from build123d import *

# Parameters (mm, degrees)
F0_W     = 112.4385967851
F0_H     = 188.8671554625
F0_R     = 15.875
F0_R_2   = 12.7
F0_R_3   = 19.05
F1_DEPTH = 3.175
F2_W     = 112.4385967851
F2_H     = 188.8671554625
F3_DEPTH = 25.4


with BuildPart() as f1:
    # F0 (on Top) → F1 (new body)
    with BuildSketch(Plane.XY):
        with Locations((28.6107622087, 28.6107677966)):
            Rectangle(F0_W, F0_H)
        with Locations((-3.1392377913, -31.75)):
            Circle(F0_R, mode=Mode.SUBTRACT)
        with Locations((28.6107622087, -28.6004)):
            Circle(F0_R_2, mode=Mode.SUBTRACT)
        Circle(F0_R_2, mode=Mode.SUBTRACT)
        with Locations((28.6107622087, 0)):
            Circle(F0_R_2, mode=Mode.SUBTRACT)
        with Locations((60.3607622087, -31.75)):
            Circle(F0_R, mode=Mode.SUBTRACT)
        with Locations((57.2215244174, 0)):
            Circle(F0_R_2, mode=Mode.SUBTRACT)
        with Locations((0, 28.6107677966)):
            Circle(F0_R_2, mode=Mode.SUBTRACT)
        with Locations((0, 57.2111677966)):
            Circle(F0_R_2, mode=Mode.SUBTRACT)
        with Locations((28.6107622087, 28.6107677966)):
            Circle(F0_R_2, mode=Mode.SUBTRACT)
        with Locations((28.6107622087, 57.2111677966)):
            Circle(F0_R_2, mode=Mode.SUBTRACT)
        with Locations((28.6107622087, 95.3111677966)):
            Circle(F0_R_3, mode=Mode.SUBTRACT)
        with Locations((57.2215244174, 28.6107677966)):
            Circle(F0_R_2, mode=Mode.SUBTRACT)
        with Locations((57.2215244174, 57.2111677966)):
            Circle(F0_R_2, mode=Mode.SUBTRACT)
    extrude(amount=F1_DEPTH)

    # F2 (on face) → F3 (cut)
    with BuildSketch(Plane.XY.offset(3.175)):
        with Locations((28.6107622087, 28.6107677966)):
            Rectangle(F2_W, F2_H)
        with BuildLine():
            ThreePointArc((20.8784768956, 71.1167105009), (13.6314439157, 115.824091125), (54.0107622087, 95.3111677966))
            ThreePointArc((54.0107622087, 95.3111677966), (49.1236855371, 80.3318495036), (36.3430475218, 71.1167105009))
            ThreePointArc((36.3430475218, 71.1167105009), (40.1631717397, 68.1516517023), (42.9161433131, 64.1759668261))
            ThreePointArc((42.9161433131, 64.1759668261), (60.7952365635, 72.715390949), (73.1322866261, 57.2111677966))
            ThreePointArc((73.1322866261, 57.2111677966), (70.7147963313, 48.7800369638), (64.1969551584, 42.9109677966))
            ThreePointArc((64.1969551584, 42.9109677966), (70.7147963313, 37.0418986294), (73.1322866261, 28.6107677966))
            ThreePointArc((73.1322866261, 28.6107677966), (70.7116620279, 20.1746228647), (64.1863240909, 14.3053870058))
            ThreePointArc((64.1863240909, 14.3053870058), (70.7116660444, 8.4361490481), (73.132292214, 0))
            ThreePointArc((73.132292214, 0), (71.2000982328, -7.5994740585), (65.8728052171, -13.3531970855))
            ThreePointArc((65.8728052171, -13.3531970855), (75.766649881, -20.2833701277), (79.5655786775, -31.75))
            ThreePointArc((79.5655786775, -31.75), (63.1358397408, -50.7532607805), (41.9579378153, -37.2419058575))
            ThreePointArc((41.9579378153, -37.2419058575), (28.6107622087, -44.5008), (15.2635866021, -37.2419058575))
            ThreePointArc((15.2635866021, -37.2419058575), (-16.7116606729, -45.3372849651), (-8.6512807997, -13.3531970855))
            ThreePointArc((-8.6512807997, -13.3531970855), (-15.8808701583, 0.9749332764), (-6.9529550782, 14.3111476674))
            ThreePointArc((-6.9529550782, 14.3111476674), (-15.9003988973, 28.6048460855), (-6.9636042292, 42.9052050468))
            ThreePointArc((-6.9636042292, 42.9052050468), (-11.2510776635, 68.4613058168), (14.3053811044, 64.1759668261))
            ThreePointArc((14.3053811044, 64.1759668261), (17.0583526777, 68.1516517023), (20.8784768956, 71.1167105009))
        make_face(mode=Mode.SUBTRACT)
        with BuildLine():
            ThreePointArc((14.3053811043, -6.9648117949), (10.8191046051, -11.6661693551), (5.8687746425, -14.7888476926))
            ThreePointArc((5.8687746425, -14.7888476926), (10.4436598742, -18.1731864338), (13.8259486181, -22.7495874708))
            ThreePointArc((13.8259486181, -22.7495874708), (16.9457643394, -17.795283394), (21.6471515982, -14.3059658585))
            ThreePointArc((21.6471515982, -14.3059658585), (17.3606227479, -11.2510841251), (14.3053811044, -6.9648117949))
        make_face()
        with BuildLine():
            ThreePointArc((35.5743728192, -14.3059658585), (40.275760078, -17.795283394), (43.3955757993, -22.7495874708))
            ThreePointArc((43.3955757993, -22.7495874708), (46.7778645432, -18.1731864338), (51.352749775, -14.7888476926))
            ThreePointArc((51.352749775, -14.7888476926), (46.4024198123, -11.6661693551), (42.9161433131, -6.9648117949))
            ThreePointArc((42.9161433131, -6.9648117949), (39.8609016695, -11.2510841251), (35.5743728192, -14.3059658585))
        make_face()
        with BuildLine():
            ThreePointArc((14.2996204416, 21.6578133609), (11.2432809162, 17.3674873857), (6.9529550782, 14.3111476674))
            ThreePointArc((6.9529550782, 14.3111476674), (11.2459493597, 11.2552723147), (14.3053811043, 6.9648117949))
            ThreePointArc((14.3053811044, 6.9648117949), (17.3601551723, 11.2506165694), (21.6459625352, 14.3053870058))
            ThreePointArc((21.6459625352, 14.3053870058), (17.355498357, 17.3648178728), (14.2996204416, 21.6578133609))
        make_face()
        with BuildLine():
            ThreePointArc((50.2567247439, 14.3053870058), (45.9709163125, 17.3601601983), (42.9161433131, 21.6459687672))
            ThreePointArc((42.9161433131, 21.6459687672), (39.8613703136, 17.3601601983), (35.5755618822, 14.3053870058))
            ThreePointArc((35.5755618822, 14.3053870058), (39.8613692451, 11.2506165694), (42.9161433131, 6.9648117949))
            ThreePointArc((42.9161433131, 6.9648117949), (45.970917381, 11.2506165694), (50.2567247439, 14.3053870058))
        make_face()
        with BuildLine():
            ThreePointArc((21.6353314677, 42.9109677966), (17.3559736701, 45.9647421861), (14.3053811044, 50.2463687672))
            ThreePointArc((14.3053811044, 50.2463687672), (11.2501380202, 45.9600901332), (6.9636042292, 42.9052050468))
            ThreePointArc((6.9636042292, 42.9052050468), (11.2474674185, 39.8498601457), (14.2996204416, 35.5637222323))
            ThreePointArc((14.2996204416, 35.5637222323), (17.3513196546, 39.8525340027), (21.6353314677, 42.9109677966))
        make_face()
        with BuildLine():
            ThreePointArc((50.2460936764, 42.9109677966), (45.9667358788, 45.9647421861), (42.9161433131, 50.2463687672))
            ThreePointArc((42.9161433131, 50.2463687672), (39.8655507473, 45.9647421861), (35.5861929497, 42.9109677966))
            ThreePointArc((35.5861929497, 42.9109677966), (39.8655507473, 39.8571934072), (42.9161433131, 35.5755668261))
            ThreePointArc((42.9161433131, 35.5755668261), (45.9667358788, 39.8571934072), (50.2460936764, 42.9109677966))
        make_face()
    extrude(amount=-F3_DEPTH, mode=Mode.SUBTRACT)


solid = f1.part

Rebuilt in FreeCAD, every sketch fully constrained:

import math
import FreeCAD as App
import Part
import Sketcher

V = App.Vector
Q = App.Units.Quantity

doc = App.newDocument("Part")
params = doc.addObject("Spreadsheet::Sheet", "Params")
for row, (alias, value) in enumerate([
    ("sketch1_diameter", "1 in"),
    ("sketch1_diameter2", "1.5 in"),
    ("sketch1_diameter3", "1.25 in"),
    ("pad1_length", "0.125 in"),
    ("sketch2_radius", "1 in"),
    ("sketch2_radius2", "0.626 in"),
    ("pocket1_length", "1 in"),
], start=1):
    params.set(f"A{row}", alias)
    params.set(f"B{row}", "=" + value)
    params.setAlias(f"B{row}", alias)

body = doc.addObject("PartDesign::Body", "Body")

sketch1 = body.newObject("Sketcher::SketchObject", "Sketch")
sketch1.AttachmentSupport = (doc.getObject("XY_Plane"), [""])
sketch1.MapMode = "FlatFace"
sketch1.addGeometry([
    Part.LineSegment(V(-28, 123, 0), V(-28, -66, 0)),
    Part.LineSegment(V(-28, -66, 0), V(85, -66, 0)),
    Part.LineSegment(V(85, -66, 0), V(85, 123, 0)),
    Part.LineSegment(V(85, 123, 0), V(-28, 123, 0)),
    Part.Circle(V(-3, -32, 0), V(0, 0, 1), 16),
    Part.Circle(V(0, 0, 0), V(0, 0, 1), 13),
    Part.Circle(V(0, 29, 0), V(0, 0, 1), 13),
    Part.Circle(V(29, -29, 0), V(0, 0, 1), 13),
    Part.Circle(V(60, -32, 0), V(0, 0, 1), 16),
    Part.Circle(V(29, 0, 0), V(0, 0, 1), 13),
    Part.Circle(V(29, 29, 0), V(0, 0, 1), 13),
    Part.Circle(V(57, 0, 0), V(0, 0, 1), 13),
    Part.Circle(V(57, 29, 0), V(0, 0, 1), 13),
    Part.Circle(V(0, 57, 0), V(0, 0, 1), 13),
    Part.Circle(V(29, 57, 0), V(0, 0, 1), 13),
    Part.Circle(V(57, 57, 0), V(0, 0, 1), 13),
    Part.Circle(V(29, 95, 0), V(0, 0, 1), 19),
], False)
sketch1.addConstraint([
    Sketcher.Constraint("Coincident", 0, 2, 1, 1),
    Sketcher.Constraint("Coincident", 1, 2, 2, 1),
    Sketcher.Constraint("Coincident", 2, 2, 3, 1),
    Sketcher.Constraint("Coincident", 3, 2, 0, 1),
    Sketcher.Constraint("Vertical", 0),
    Sketcher.Constraint("Horizontal", 1),
    Sketcher.Constraint("Vertical", 2),
    Sketcher.Constraint("Horizontal", 3),
    Sketcher.Constraint("Coincident", 5, 3, -1, 1),
    Sketcher.Constraint("Equal", 5, 6),
    Sketcher.Constraint("Equal", 6, 7),
    Sketcher.Constraint("Equal", 4, 8),
    Sketcher.Constraint("Equal", 7, 9),
    Sketcher.Constraint("Equal", 9, 10),
    Sketcher.Constraint("Equal", 10, 11),
    Sketcher.Constraint("Equal", 11, 12),
    Sketcher.Constraint("Equal", 12, 13),
    Sketcher.Constraint("Equal", 13, 14),
    Sketcher.Constraint("Equal", 14, 15),
    Sketcher.Constraint("PointOnObject", 6, 3, -2),
    Sketcher.Constraint("PointOnObject", 9, 3, -1),
    Sketcher.Constraint("PointOnObject", 11, 3, -1),
    Sketcher.Constraint("PointOnObject", 13, 3, -2),
    Sketcher.Constraint("Horizontal", 4, 3, 8, 3),
    Sketcher.Constraint("Horizontal", 6, 3, 10, 3),
    Sketcher.Constraint("Horizontal", 10, 3, 12, 3),
    Sketcher.Constraint("Horizontal", 13, 3, 14, 3),
    Sketcher.Constraint("Horizontal", 14, 3, 15, 3),
    Sketcher.Constraint("Vertical", 7, 3, 9, 3),
    Sketcher.Constraint("Vertical", 9, 3, 10, 3),
    Sketcher.Constraint("Vertical", 11, 3, 12, 3),
    Sketcher.Constraint("Vertical", 10, 3, 14, 3),
    Sketcher.Constraint("Vertical", 12, 3, 15, 3),
    Sketcher.Constraint("Vertical", 14, 3, 16, 3),
    Sketcher.Constraint("Diameter", 5, Q("1 in")),
    Sketcher.Constraint("Diameter", 16, Q("1.5 in")),
    Sketcher.Constraint("Diameter", 4, Q("1.25 in")),
    Sketcher.Constraint("DistanceX", 4, 3, 8, 3, Q("2.5 in")),
    Sketcher.Constraint("DistanceY", 14, 3, 16, 3, Q("1.5 in")),
    Sketcher.Constraint("DistanceY", 4, 3, -1, 1, Q("1.25 in")),
    Sketcher.Constraint("DistanceX", 4, 3, 7, 3, Q("1.25 in")),
    Sketcher.Constraint("DistanceY", 7, 3, -1, 1, Q("1.126 in")),
    Sketcher.Constraint("DistanceY", 6, 3, 13, 3, Q("1.126 in")),
    Sketcher.Constraint("DistanceX", 0, 2, 4, 3, 24.469298),
    Sketcher.Constraint("DistanceX", 8, 3, 1, 2, 24.469298),
    Sketcher.Constraint("DistanceY", 0, 2, 0, 1, 188.867155),
    Sketcher.Constraint("DistanceY", 0, 2, -1, 1, 65.82281),
    Sketcher.Constraint("DistanceX", -1, 1, 1, 2, 84.830061),
    Sketcher.Constraint("DistanceX", 3, 2, 15, 3, 84.830061),
    Sketcher.Constraint("DistanceY", -1, 1, 6, 3, 28.610768),
])
sketch1.setExpression("Constraints[34]", "Params.sketch1_diameter")
sketch1.setExpression("Constraints[35]", "Params.sketch1_diameter2")
sketch1.setExpression("Constraints[36]", "Params.sketch1_diameter3")
pad1 = body.newObject("PartDesign::Pad", "Pad")
pad1.Profile = sketch1
pad1.setExpression("Length", "Params.pad1_length")

sketch2 = body.newObject("Sketcher::SketchObject", "Sketch001")
sketch2.AttachmentSupport = (doc.getObject("XY_Plane"), [""])
sketch2.MapMode = "FlatFace"
sketch2.AttachmentOffset = App.Placement(V(0, 0, 0.125 * 25.4), App.Rotation())
sketch2.addGeometry([
    Part.LineSegment(V(-28, 123, 0), V(-28, -66, 0)),
    Part.LineSegment(V(-28, -66, 0), V(85, -66, 0)),
    Part.LineSegment(V(85, -66, 0), V(85, 123, 0)),
    Part.LineSegment(V(85, 123, 0), V(-28, 123, 0)),
    Part.ArcOfCircle(Part.Circle(V(29, 57, 0), V(0, 0, 1), 16), math.radians(119), math.radians(154)),
    Part.ArcOfCircle(Part.Circle(V(29, 95, 0), V(0, 0, 1), 25), math.radians(0), math.radians(252)),
    Part.ArcOfCircle(Part.Circle(V(29, 95, 0), V(0, 0, 1), 25), math.radians(-72), math.radians(0)),
    Part.ArcOfCircle(Part.Circle(V(29, 57, 0), V(0, 0, 1), 16), math.radians(26), math.radians(61)),
    Part.ArcOfCircle(Part.Circle(V(57, 57, 0), V(0, 0, 1), 16), math.radians(0), math.radians(154)),
    Part.ArcOfCircle(Part.Circle(V(57, 57, 0), V(0, 0, 1), 16), math.radians(-64), math.radians(0)),
    Part.ArcOfCircle(Part.Circle(V(57, 29, 0), V(0, 0, 1), 16), math.radians(0), math.radians(64)),
    Part.ArcOfCircle(Part.Circle(V(57, 29, 0), V(0, 0, 1), 16), math.radians(-64), math.radians(0)),
    Part.ArcOfCircle(Part.Circle(V(57, 0, 0), V(0, 0, 1), 16), math.radians(0), math.radians(64)),
    Part.ArcOfCircle(Part.Circle(V(57, 0, 0), V(0, 0, 1), 16), math.radians(-57), math.radians(0)),
    Part.ArcOfCircle(Part.Circle(V(60, -32, 0), V(0, 0, 1), 19), math.radians(0), math.radians(73)),
    Part.ArcOfCircle(Part.Circle(V(60, -32, 0), V(0, 0, 1), 19), math.radians(-163), math.radians(0)),
    Part.ArcOfCircle(Part.Circle(V(29, -29, 0), V(0, 0, 1), 16), math.radians(-147), math.radians(-33)),
    Part.ArcOfCircle(Part.Circle(V(-3, -32, 0), V(0, 0, 1), 19), math.radians(107), math.radians(343)),
    Part.ArcOfCircle(Part.Circle(V(0, 0, 0), V(0, 0, 1), 16), math.radians(116), math.radians(237)),
    Part.ArcOfCircle(Part.Circle(V(0, 29, 0), V(0, 0, 1), 16), math.radians(116), math.radians(244)),
    Part.ArcOfCircle(Part.Circle(V(0, 57, 0), V(0, 0, 1), 16), math.radians(26), math.radians(244)),
    Part.ArcOfCircle(Part.Circle(V(0, 0, 0), V(0, 0, 1), 16), math.radians(-68), math.radians(-26)),
    Part.ArcOfCircle(Part.Circle(V(-3, -32, 0), V(0, 0, 1), 19), math.radians(28), math.radians(62)),
    Part.ArcOfCircle(Part.Circle(V(29, -29, 0), V(0, 0, 1), 16), math.radians(116), math.radians(158)),
    Part.ArcOfCircle(Part.Circle(V(29, 0, 0), V(0, 0, 1), 16), math.radians(-154), math.radians(-116)),
    Part.ArcOfCircle(Part.Circle(V(29, -29, 0), V(0, 0, 1), 16), math.radians(22), math.radians(64)),
    Part.ArcOfCircle(Part.Circle(V(60, -32, 0), V(0, 0, 1), 19), math.radians(118), math.radians(152)),
    Part.ArcOfCircle(Part.Circle(V(57, 0, 0), V(0, 0, 1), 16), math.radians(-154), math.radians(-112)),
    Part.ArcOfCircle(Part.Circle(V(29, 0, 0), V(0, 0, 1), 16), math.radians(-64), math.radians(-26)),
    Part.ArcOfCircle(Part.Circle(V(0, 29, 0), V(0, 0, 1), 16), math.radians(-64), math.radians(-26)),
    Part.ArcOfCircle(Part.Circle(V(0, 0, 0), V(0, 0, 1), 16), math.radians(26), math.radians(64)),
    Part.ArcOfCircle(Part.Circle(V(29, 0, 0), V(0, 0, 1), 16), math.radians(116), math.radians(154)),
    Part.ArcOfCircle(Part.Circle(V(29, 29, 0), V(0, 0, 1), 16), math.radians(-154), math.radians(-116)),
    Part.ArcOfCircle(Part.Circle(V(57, 29, 0), V(0, 0, 1), 16), math.radians(-154), math.radians(-116)),
    Part.ArcOfCircle(Part.Circle(V(29, 29, 0), V(0, 0, 1), 16), math.radians(-64), math.radians(-26)),
    Part.ArcOfCircle(Part.Circle(V(29, 0, 0), V(0, 0, 1), 16), math.radians(26), math.radians(64)),
    Part.ArcOfCircle(Part.Circle(V(57, 0, 0), V(0, 0, 1), 16), math.radians(116), math.radians(154)),
    Part.ArcOfCircle(Part.Circle(V(29, 57, 0), V(0, 0, 1), 16), math.radians(-154), math.radians(-116)),
    Part.ArcOfCircle(Part.Circle(V(0, 57, 0), V(0, 0, 1), 16), math.radians(-64), math.radians(-26)),
    Part.ArcOfCircle(Part.Circle(V(0, 29, 0), V(0, 0, 1), 16), math.radians(26), math.radians(64)),
    Part.ArcOfCircle(Part.Circle(V(29, 29, 0), V(0, 0, 1), 16), math.radians(116), math.radians(154)),
    Part.ArcOfCircle(Part.Circle(V(57, 57, 0), V(0, 0, 1), 16), math.radians(-154), math.radians(-116)),
    Part.ArcOfCircle(Part.Circle(V(29, 57, 0), V(0, 0, 1), 16), math.radians(-64), math.radians(-26)),
    Part.ArcOfCircle(Part.Circle(V(29, 29, 0), V(0, 0, 1), 16), math.radians(26), math.radians(64)),
    Part.ArcOfCircle(Part.Circle(V(57, 29, 0), V(0, 0, 1), 16), math.radians(116), math.radians(154)),
], False)
sketch2.addConstraint([
    Sketcher.Constraint("Coincident", 0, 2, 1, 1),
    Sketcher.Constraint("Coincident", 1, 2, 2, 1),
    Sketcher.Constraint("Coincident", 2, 2, 3, 1),
    Sketcher.Constraint("Coincident", 3, 2, 0, 1),
    Sketcher.Constraint("Coincident", 4, 1, 5, 2),
    Sketcher.Constraint("Tangent", 5, 1, 6, 2),
    Sketcher.Constraint("Coincident", 6, 1, 7, 2),
    Sketcher.Constraint("Coincident", 7, 1, 8, 2),
    Sketcher.Constraint("Tangent", 8, 1, 9, 2),
    Sketcher.Constraint("Coincident", 9, 1, 10, 2),
    Sketcher.Constraint("Tangent", 10, 1, 11, 2),
    Sketcher.Constraint("Coincident", 11, 1, 12, 2),
    Sketcher.Constraint("Tangent", 12, 1, 13, 2),
    Sketcher.Constraint("Coincident", 13, 1, 14, 2),
    Sketcher.Constraint("Tangent", 14, 1, 15, 2),
    Sketcher.Constraint("Coincident", 15, 1, 16, 2),
    Sketcher.Constraint("Coincident", 16, 1, 17, 2),
    Sketcher.Constraint("Coincident", 17, 1, 18, 2),
    Sketcher.Constraint("Coincident", 18, 1, 19, 2),
    Sketcher.Constraint("Coincident", 19, 1, 20, 2),
    Sketcher.Constraint("Coincident", 20, 1, 4, 2),
    Sketcher.Constraint("Coincident", 21, 1, 22, 2),
    Sketcher.Constraint("Coincident", 22, 1, 23, 2),
    Sketcher.Constraint("Coincident", 23, 1, 24, 2),
    Sketcher.Constraint("Coincident", 24, 1, 21, 2),
    Sketcher.Constraint("Coincident", 25, 1, 26, 2),
    Sketcher.Constraint("Coincident", 26, 1, 27, 2),
    Sketcher.Constraint("Coincident", 27, 1, 28, 2),
    Sketcher.Constraint("Coincident", 28, 1, 25, 2),
    Sketcher.Constraint("Coincident", 29, 1, 30, 2),
    Sketcher.Constraint("Coincident", 30, 1, 31, 2),
    Sketcher.Constraint("Coincident", 31, 1, 32, 2),
    Sketcher.Constraint("Coincident", 32, 1, 29, 2),
    Sketcher.Constraint("Coincident", 33, 1, 34, 2),
    Sketcher.Constraint("Coincident", 34, 1, 35, 2),
    Sketcher.Constraint("Coincident", 35, 1, 36, 2),
    Sketcher.Constraint("Coincident", 36, 1, 33, 2),
    Sketcher.Constraint("Coincident", 37, 1, 38, 2),
    Sketcher.Constraint("Coincident", 38, 1, 39, 2),
    Sketcher.Constraint("Coincident", 39, 1, 40, 2),
    Sketcher.Constraint("Coincident", 40, 1, 37, 2),
    Sketcher.Constraint("Coincident", 41, 1, 42, 2),
    Sketcher.Constraint("Coincident", 42, 1, 43, 2),
    Sketcher.Constraint("Coincident", 43, 1, 44, 2),
    Sketcher.Constraint("Coincident", 44, 1, 41, 2),
    Sketcher.Constraint("Vertical", 0),
    Sketcher.Constraint("Horizontal", 1),
    Sketcher.Constraint("Vertical", 2),
    Sketcher.Constraint("Horizontal", 3),
    Sketcher.Constraint("Coincident", 18, 3, -1, 1),
    Sketcher.Constraint("Coincident", 21, 3, -1, 1),
    Sketcher.Constraint("Coincident", 30, 3, -1, 1),
    Sketcher.Constraint("Coincident", 7, 3, 4, 3),
    Sketcher.Constraint("Coincident", 22, 3, 17, 3),
    Sketcher.Constraint("Coincident", 23, 3, 16, 3),
    Sketcher.Constraint("Coincident", 25, 3, 16, 3),
    Sketcher.Constraint("Coincident", 26, 3, 14, 3),
    Sketcher.Constraint("Coincident", 27, 3, 12, 3),
    Sketcher.Constraint("Coincident", 28, 3, 24, 3),
    Sketcher.Constraint("Coincident", 29, 3, 19, 3),
    Sketcher.Constraint("Coincident", 31, 3, 24, 3),
    Sketcher.Constraint("Coincident", 33, 3, 10, 3),
    Sketcher.Constraint("Coincident", 34, 3, 32, 3),
    Sketcher.Constraint("Coincident", 35, 3, 24, 3),
    Sketcher.Constraint("Coincident", 36, 3, 12, 3),
    Sketcher.Constraint("Coincident", 37, 3, 4, 3),
    Sketcher.Constraint("Coincident", 38, 3, 20, 3),
    Sketcher.Constraint("Coincident", 39, 3, 19, 3),
    Sketcher.Constraint("Coincident", 40, 3, 32, 3),
    Sketcher.Constraint("Coincident", 41, 3, 8, 3),
    Sketcher.Constraint("Coincident", 42, 3, 4, 3),
    Sketcher.Constraint("Coincident", 43, 3, 32, 3),
    Sketcher.Constraint("Coincident", 44, 3, 10, 3),
    Sketcher.Constraint("Equal", 5, 6),
    Sketcher.Constraint("Equal", 4, 7),
    Sketcher.Constraint("Equal", 7, 8),
    Sketcher.Constraint("Equal", 8, 9),
    Sketcher.Constraint("Equal", 9, 10),
    Sketcher.Constraint("Equal", 10, 11),
    Sketcher.Constraint("Equal", 12, 13),
    Sketcher.Constraint("Equal", 14, 15),
    Sketcher.Constraint("Equal", 15, 17),
    Sketcher.Constraint("Equal", 13, 18),
    Sketcher.Constraint("Equal", 16, 19),
    Sketcher.Constraint("Equal", 11, 20),
    Sketcher.Constraint("Equal", 18, 21),
    Sketcher.Constraint("Equal", 17, 22),
    Sketcher.Constraint("Equal", 19, 23),
    Sketcher.Constraint("Equal", 21, 24),
    Sketcher.Constraint("Equal", 23, 25),
    Sketcher.Constraint("Equal", 22, 26),
    Sketcher.Constraint("Equal", 24, 27),
    Sketcher.Constraint("Equal", 27, 28),
    Sketcher.Constraint("Equal", 25, 29),
    Sketcher.Constraint("Equal", 28, 30),
    Sketcher.Constraint("Equal", 30, 31),
    Sketcher.Constraint("Equal", 20, 32),
    Sketcher.Constraint("Equal", 32, 33),
    Sketcher.Constraint("Equal", 33, 34),
    Sketcher.Constraint("Equal", 31, 35),
    Sketcher.Constraint("Equal", 35, 36),
    Sketcher.Constraint("Equal", 34, 37),
    Sketcher.Constraint("Equal", 37, 38),
    Sketcher.Constraint("Equal", 29, 39),
    Sketcher.Constraint("Equal", 38, 40),
    Sketcher.Constraint("Equal", 40, 41),
    Sketcher.Constraint("Equal", 41, 42),
    Sketcher.Constraint("Equal", 42, 43),
    Sketcher.Constraint("Equal", 43, 44),
    Sketcher.Constraint("Symmetric", 19, 1, 38, 1, -2),
    Sketcher.Constraint("Symmetric", 27, 1, 35, 1, -1),
    Sketcher.Constraint("PointOnObject", 12, 1, -1),
    Sketcher.Constraint("Horizontal", 7, 3, 8, 3),
    Sketcher.Constraint("Horizontal", 15, 3, 17, 3),
    Sketcher.Constraint("Horizontal", 11, 3, 19, 3),
    Sketcher.Constraint("Horizontal", 9, 3, 20, 3),
    Sketcher.Constraint("Horizontal", 29, 3, 32, 3),
    Sketcher.Constraint("Horizontal", 6, 3, 5, 1),
    Sketcher.Constraint("Horizontal", 4, 1, 6, 1),
    Sketcher.Constraint("Horizontal", 42, 3, 8, 1),
    Sketcher.Constraint("Horizontal", 44, 3, 10, 1),
    Sketcher.Constraint("Horizontal", 26, 3, 14, 1),
    Sketcher.Constraint("Horizontal", 15, 1, 16, 1),
    Sketcher.Constraint("Horizontal", 13, 1, 17, 1),
    Sketcher.Constraint("Horizontal", 7, 1, 20, 1),
    Sketcher.Constraint("Horizontal", 24, 1, 27, 1),
    Sketcher.Constraint("Horizontal", 11, 1, 31, 1),
    Sketcher.Constraint("Horizontal", 31, 1, 34, 1),
    Sketcher.Constraint("Horizontal", 9, 1, 40, 1),
    Sketcher.Constraint("Radius", 5, Q("1 in")),
    Sketcher.Constraint("Radius", 16, Q("0.626 in")),
    Sketcher.Constraint("DistanceY", 14, 3, -1, 1, Q("1.25 in")),
    Sketcher.Constraint("DistanceY", 16, 3, -1, 1, Q("1.126 in")),
    Sketcher.Constraint("Radius", 4, 15.910762),
    Sketcher.Constraint("Radius", 12, 15.910768),
    Sketcher.Constraint("Radius", 14, 19.204816),
    Sketcher.Constraint("DistanceX", 1, 1, 1, 2, 112.438597),
    Sketcher.Constraint("DistanceY", 0, 2, 0, 1, 188.867155),
    Sketcher.Constraint("DistanceY", 0, 2, -1, 1, 65.82281),
    Sketcher.Constraint("DistanceX", -1, 1, 1, 2, 84.830061),
    Sketcher.Constraint("DistanceY", -1, 1, 4, 1, 71.116711),
    Sketcher.Constraint("DistanceX", -1, 1, 14, 1, 79.565579),
    Sketcher.Constraint("DistanceX", 17, 1, -1, 1, 8.651281),
    Sketcher.Constraint("DistanceY", -1, 1, 33, 1, 21.645969),
    Sketcher.Constraint("DistanceY", -1, 1, 37, 1, 50.246369),
])
sketch2.setExpression("Constraints[129]", "Params.sketch2_radius")
sketch2.setExpression("Constraints[130]", "Params.sketch2_radius2")
pocket1 = body.newObject("PartDesign::Pocket", "Pocket")
pocket1.Profile = sketch2
pocket1.setExpression("Length", "Params.pocket1_length")

doc.recompute()
